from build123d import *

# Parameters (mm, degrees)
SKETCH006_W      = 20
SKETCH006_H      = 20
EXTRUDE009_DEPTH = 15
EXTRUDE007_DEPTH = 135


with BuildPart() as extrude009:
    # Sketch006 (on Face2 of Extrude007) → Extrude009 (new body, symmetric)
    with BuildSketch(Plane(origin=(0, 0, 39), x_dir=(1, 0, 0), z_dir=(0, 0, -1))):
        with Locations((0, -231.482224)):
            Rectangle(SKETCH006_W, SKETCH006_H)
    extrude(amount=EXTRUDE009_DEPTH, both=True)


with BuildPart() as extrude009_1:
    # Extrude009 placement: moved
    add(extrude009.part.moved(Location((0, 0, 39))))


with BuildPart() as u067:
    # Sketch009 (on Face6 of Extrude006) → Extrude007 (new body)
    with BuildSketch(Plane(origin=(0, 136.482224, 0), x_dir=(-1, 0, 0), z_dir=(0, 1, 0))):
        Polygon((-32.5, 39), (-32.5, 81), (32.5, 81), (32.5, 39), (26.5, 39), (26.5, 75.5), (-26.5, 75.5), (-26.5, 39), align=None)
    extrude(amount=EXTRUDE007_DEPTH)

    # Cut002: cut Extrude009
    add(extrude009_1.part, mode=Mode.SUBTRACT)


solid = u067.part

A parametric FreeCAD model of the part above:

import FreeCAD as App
import Part
import Sketcher

V = App.Vector
Q = App.Units.Quantity

doc = App.newDocument("Part")
body = doc.addObject("PartDesign::Body", "Body")

sketch1 = doc.addObject("Sketcher::SketchObject", "Sketch")
body.addObject(sketch1)
sketch1.AttachmentSupport = (doc.XY_Plane, [""])
sketch1.MapMode = "FlatFace"
sketch1.AttachmentOffset = App.Placement(V(0, 0, 39), App.Rotation())
sketch1.addGeometry([
    Part.LineSegment(V(-10, 221, 0), V(-10, 241, 0)),
    Part.LineSegment(V(-10, 241, 0), V(10, 241, 0)),
    Part.LineSegment(V(10, 241, 0), V(10, 221, 0)),
    Part.LineSegment(V(10, 221, 0), V(-10, 221, 0)),
], False)
sketch1.addConstraint([
    Sketcher.Constraint("Coincident", 0, 2, 1, 1),
    Sketcher.Constraint("Coincident", 1, 2, 2, 1),
    Sketcher.Constraint("Coincident", 2, 2, 3, 1),
    Sketcher.Constraint("Coincident", 3, 2, 0, 1),
    Sketcher.Constraint("Vertical", 0),
    Sketcher.Constraint("Horizontal", 1),
    Sketcher.Constraint("Vertical", 2),
    Sketcher.Constraint("Horizontal", 3),
    Sketcher.Constraint("Equal", 3, 0),
    Sketcher.Constraint("DistanceX", 1, 1, 1, 2, Q("20 mm")),
    Sketcher.Constraint("DistanceX", 0, 2, -1, 1, Q("10 mm")),
    Sketcher.Constraint("DistanceY", -1, 1, 0, 2, Q("241.482224 mm")),
])
pad1 = doc.addObject("PartDesign::Pad", "Pad")
body.addObject(pad1)
pad1.Profile = sketch1
pad1.Length = 30
pad1.Midplane = True
body2 = doc.addObject("PartDesign::Body", "Body001")
doc.recompute()

body.Placement = App.Placement(V(0, 0, 39), App.Rotation(V(0, 0, 1), 0))
boolean = doc.addObject("PartDesign::Boolean", "Boolean")
body2.addObject(boolean)
boolean.Type = "Fuse"
boolean.addObjects([body])
body3 = doc.addObject("PartDesign::Body", "Body002")

sketch2 = doc.addObject("Sketcher::SketchObject", "Sketch001")
body3.addObject(sketch2)
sketch2.AttachmentSupport = (doc.getObject("XZ_Plane002"), [""])
sketch2.MapMode = "FlatFace"
sketch2.AttachmentOffset = App.Placement(V(0, 0, -136.482224), App.Rotation())
sketch2.addGeometry([
    Part.LineSegment(V(32, 81, 0), V(32, 39, 0)),
    Part.LineSegment(V(32, 39, 0), V(26, 39, 0)),
    Part.LineSegment(V(26, 39, 0), V(26, 76, 0)),
    Part.LineSegment(V(26, 76, 0), V(-26, 76, 0)),
    Part.LineSegment(V(-26, 76, 0), V(-26, 39, 0)),
    Part.LineSegment(V(-26, 39, 0), V(-32, 39, 0)),
    Part.LineSegment(V(-32, 39, 0), V(-32, 81, 0)),
    Part.LineSegment(V(-32, 81, 0), V(32, 81, 0)),
], False)
sketch2.addConstraint([
    Sketcher.Constraint("Coincident", 0, 2, 1, 1),
    Sketcher.Constraint("Coincident", 1, 2, 2, 1),
    Sketcher.Constraint("Coincident", 2, 2, 3, 1),
    Sketcher.Constraint("Coincident", 3, 2, 4, 1),
    Sketcher.Constraint("Coincident", 4, 2, 5, 1),
    Sketcher.Constraint("Coincident", 5, 2, 6, 1),
    Sketcher.Constraint("Coincident", 6, 2, 7, 1),
    Sketcher.Constraint("Coincident", 7, 2, 0, 1),
    Sketcher.Constraint("Vertical", 0),
    Sketcher.Constraint("Horizontal", 1),
    Sketcher.Constraint("Vertical", 2),
    Sketcher.Constraint("Horizontal", 3),
    Sketcher.Constraint("Vertical", 4),
    Sketcher.Constraint("Horizontal", 5),
    Sketcher.Constraint("Vertical", 6),
    Sketcher.Constraint("Horizontal", 7),
    Sketcher.Constraint("Symmetric", 1, 2, 4, 2, -2),
    Sketcher.Constraint("Equal", 1, 5),
    Sketcher.Constraint("DistanceX", 1, 2, 1, 1, Q("6 mm")),
    Sketcher.Constraint("DistanceX", 3, 2, 3, 1, Q("53 mm")),
    Sketcher.Constraint("DistanceY", 0, 2, 0, 1, Q("42 mm")),
    Sketcher.Constraint("DistanceY", 2, 1, 2, 2, Q("36.5 mm")),
    Sketcher.Constraint("DistanceY", -1, 1, 0, 2, Q("39 mm")),
])
pad2 = doc.addObject("PartDesign::Pad", "Pad001")
body3.addObject(pad2)
pad2.Profile = sketch2
pad2.Length = 135
pad2.Reversed = True
doc.recompute()

boolean2 = doc.addObject("PartDesign::Boolean", "Boolean001")
body3.addObject(boolean2)
boolean2.Type = "Cut"
boolean2.addObjects([body2])

doc.recompute()
